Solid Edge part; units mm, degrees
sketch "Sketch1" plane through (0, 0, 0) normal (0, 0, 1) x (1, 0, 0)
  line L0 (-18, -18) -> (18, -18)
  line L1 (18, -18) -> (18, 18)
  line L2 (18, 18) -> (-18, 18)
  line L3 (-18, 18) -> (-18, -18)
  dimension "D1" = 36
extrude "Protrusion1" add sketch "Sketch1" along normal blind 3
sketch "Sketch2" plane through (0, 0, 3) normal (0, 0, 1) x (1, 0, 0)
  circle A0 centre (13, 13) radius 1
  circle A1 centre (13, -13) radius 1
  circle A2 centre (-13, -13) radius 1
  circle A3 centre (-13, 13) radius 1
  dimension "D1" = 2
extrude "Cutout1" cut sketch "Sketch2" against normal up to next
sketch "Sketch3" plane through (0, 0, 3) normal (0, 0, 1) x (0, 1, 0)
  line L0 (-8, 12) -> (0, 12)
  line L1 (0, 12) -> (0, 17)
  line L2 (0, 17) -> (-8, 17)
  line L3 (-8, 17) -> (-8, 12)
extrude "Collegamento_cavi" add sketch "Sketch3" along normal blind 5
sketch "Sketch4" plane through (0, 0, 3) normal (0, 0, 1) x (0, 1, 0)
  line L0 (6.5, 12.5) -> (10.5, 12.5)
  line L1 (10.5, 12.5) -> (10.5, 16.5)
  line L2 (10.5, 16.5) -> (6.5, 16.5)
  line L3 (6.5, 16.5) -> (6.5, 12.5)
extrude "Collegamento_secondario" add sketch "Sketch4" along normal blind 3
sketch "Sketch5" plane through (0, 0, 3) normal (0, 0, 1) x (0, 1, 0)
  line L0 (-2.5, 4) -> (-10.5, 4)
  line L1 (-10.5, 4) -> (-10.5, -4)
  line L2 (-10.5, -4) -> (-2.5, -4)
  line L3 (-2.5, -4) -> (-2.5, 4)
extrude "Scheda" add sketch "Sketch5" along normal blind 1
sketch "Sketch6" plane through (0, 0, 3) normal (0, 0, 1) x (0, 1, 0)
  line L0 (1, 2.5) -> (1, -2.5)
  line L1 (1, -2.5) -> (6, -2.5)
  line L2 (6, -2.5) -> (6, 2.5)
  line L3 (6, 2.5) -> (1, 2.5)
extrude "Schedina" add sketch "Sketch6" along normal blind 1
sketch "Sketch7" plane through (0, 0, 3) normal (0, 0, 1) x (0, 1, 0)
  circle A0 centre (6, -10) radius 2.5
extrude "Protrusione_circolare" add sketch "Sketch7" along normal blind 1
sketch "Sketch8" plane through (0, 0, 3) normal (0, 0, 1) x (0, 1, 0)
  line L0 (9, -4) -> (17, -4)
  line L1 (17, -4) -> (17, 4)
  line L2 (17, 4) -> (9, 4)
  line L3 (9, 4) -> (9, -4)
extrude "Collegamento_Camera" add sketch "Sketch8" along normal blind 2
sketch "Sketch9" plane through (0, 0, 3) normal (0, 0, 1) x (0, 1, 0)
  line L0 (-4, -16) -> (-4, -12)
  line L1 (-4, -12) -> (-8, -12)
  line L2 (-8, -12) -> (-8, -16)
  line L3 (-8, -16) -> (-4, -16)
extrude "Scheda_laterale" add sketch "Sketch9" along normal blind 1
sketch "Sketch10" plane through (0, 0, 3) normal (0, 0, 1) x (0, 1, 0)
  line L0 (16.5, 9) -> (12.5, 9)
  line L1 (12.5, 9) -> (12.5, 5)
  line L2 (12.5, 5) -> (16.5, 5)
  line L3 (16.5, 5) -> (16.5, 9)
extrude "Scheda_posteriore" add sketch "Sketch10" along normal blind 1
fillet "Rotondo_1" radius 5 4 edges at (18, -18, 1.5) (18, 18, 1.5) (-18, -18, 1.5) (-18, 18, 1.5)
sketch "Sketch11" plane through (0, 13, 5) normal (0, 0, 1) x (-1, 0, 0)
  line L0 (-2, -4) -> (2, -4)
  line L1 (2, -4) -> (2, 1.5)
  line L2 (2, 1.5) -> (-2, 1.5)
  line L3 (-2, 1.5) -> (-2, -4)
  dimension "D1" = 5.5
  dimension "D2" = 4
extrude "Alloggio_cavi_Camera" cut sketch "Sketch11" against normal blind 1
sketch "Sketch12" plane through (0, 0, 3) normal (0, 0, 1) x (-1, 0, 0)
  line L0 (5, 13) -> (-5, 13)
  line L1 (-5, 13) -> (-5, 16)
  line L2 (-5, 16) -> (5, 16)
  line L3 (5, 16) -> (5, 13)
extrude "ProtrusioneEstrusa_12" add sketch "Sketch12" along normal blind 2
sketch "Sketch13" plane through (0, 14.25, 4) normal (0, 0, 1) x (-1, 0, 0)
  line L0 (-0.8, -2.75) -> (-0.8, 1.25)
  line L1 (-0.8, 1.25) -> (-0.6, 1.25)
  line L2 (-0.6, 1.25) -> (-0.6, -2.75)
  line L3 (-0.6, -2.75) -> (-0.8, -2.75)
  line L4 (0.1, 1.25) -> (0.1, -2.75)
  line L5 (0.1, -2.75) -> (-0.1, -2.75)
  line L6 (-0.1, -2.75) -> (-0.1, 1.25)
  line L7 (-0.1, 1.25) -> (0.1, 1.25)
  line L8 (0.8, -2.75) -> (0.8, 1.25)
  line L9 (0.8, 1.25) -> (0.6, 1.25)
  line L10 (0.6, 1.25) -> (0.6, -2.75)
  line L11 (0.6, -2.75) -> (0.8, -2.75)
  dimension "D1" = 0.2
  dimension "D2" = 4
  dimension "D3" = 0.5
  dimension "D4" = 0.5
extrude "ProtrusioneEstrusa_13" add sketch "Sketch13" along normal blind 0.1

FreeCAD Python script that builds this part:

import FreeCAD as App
import Part
import Sketcher
from FreeCAD import Vector


def edges_at(feature, points):
    """Names of the edges that pass closest to the given points."""
    edges = feature.Shape.Edges
    near = lambda p: min(range(len(edges)), key=lambda i: edges[i].distToShape(Part.Vertex(*p))[0])
    return sorted({f"Edge{near(p) + 1}" for p in points})


def add_polygon(sketch, points):
    """Adds a closed chain of lines whose ends are joined by coincident constraints."""
    first, n = sketch.GeometryCount, len(points)
    for a, b in zip(points, points[1:] + points[:1]):
        sketch.addGeometry(Part.LineSegment(App.Vector(*a, 0), App.Vector(*b, 0)), False)
    for i in range(n):
        sketch.addConstraint(Sketcher.Constraint("Coincident", first + i, 2, first + (i + 1) % n, 1))

doc = App.newDocument("Part")
body = doc.addObject("PartDesign::Body", "Body")

# Sketch on XY plane
sketch1 = body.newObject("Sketcher::SketchObject", "Sketch")
sketch1.AttachmentSupport = (doc.getObject("XY_Plane"), [""])
sketch1.MapMode = "FlatFace"
add_polygon(sketch1, [(-18, 18), (-18, -18), (18, -18), (18, 18)])  # lines 0-3
sketch1.addConstraint(Sketcher.Constraint("Vertical", 0))
sketch1.addConstraint(Sketcher.Constraint("Horizontal", 1))
sketch1.addConstraint(Sketcher.Constraint("Vertical", 2))
sketch1.addConstraint(Sketcher.Constraint("Horizontal", 3))
sketch1.addConstraint(Sketcher.Constraint("Symmetric", 0, 2, 2, 2, -1, 1))
sketch1.addConstraint(Sketcher.Constraint("Equal", 3, 0))
sketch1.addConstraint(Sketcher.Constraint("DistanceX", 0, 2, -1, 1, 18.0))
pad1 = body.newObject("PartDesign::Pad", "Pad")
pad1.Profile = sketch1
pad1.Length = 3

# Sketch on XY plane
sketch2 = body.newObject("Sketcher::SketchObject", "Sketch001")
sketch2.AttachmentSupport = (doc.getObject("XY_Plane"), [""])
sketch2.MapMode = "FlatFace"
sketch2.AttachmentOffset = App.Placement(Vector(0, 0, 3), App.Rotation())
sketch2.addGeometry(Part.Circle(Vector(13, 13, 0), Vector(0, 0, 1), 1), False)
sketch2.addGeometry(Part.Circle(Vector(13, -13, 0), Vector(0, 0, 1), 1), False)
sketch2.addGeometry(Part.Circle(Vector(-13, -13, 0), Vector(0, 0, 1), 1), False)
sketch2.addGeometry(Part.Circle(Vector(-13, 13, 0), Vector(0, 0, 1), 1), False)
sketch2.addConstraint(Sketcher.Constraint("Equal", 0, 1))
sketch2.addConstraint(Sketcher.Constraint("Equal", 1, 2))
sketch2.addConstraint(Sketcher.Constraint("Equal", 2, 3))
sketch2.addConstraint(Sketcher.Constraint("Symmetric", 0, 3, 2, 3, -1, 1))
sketch2.addConstraint(Sketcher.Constraint("Symmetric", 1, 3, 3, 3, -1, 1))
sketch2.addConstraint(Sketcher.Constraint("Symmetric", 1, 3, 2, 3, -2))
sketch2.addConstraint(Sketcher.Constraint("Diameter", 0, 2.0))
sketch2.addConstraint(Sketcher.Constraint("DistanceX", -1, 1, 0, 3, 13.0))
sketch2.addConstraint(Sketcher.Constraint("DistanceY", -1, 1, 0, 3, 13.0))
pocket1 = body.newObject("PartDesign::Pocket", "Pocket")
pocket1.Profile = sketch2
pocket1.Type = "UpToFirst"

# Sketch on XY plane
sketch3 = body.newObject("Sketcher::SketchObject", "Sketch002")
sketch3.AttachmentSupport = (doc.getObject("XY_Plane"), [""])
sketch3.MapMode = "FlatFace"
sketch3.AttachmentOffset = App.Placement(Vector(0, 0, 3), App.Rotation())
add_polygon(sketch3, [(-17, -8), (-12, -8), (-12, 0), (-17, 0)])  # lines 0-3
sketch3.addConstraint(Sketcher.Constraint("Horizontal", 0))
sketch3.addConstraint(Sketcher.Constraint("Vertical", 1))
sketch3.addConstraint(Sketcher.Constraint("Horizontal", 2))
sketch3.addConstraint(Sketcher.Constraint("Vertical", 3))
sketch3.addConstraint(Sketcher.Constraint("PointOnObject", 1, 2, -1))
sketch3.addConstraint(Sketcher.Constraint("DistanceX", 0, 1, 0, 2, 5.0))
sketch3.addConstraint(Sketcher.Constraint("DistanceY", 1, 1, 1, 2, 8.0))
sketch3.addConstraint(Sketcher.Constraint("DistanceX", 0, 2, -1, 1, 12.0))
pad2 = body.newObject("PartDesign::Pad", "Pad001")
pad2.Profile = sketch3
pad2.Length = 5

# Sketch on XY plane
sketch4 = body.newObject("Sketcher::SketchObject", "Sketch003")
sketch4.AttachmentSupport = (doc.getObject("XY_Plane"), [""])
sketch4.MapMode = "FlatFace"
sketch4.AttachmentOffset = App.Placement(Vector(0, 0, 3), App.Rotation())
add_polygon(sketch4, [(-16.5, 6.5), (-12.5, 6.5), (-12.5, 10.5), (-16.5, 10.5)])  # lines 0-3
sketch4.addConstraint(Sketcher.Constraint("Horizontal", 0))
sketch4.addConstraint(Sketcher.Constraint("Vertical", 1))
sketch4.addConstraint(Sketcher.Constraint("Horizontal", 2))
sketch4.addConstraint(Sketcher.Constraint("Vertical", 3))
sketch4.addConstraint(Sketcher.Constraint("Equal", 2, 1))
sketch4.addConstraint(Sketcher.Constraint("DistanceX", 0, 1, 0, 2, 4.0))
sketch4.addConstraint(Sketcher.Constraint("DistanceX", 0, 2, -1, 1, 12.5))
sketch4.addConstraint(Sketcher.Constraint("DistanceY", -1, 1, 0, 2, 6.5))
pad3 = body.newObject("PartDesign::Pad", "Pad002")
pad3.Profile = sketch4
pad3.Length = 3

# Sketch on XY plane
sketch5 = body.newObject("Sketcher::SketchObject", "Sketch004")
sketch5.AttachmentSupport = (doc.getObject("XY_Plane"), [""])
sketch5.MapMode = "FlatFace"
sketch5.AttachmentOffset = App.Placement(Vector(0, 0, 3), App.Rotation())
add_polygon(sketch5, [(4, -2), (-4, -2), (-4, -10), (4, -10)])  # lines 0-3
sketch5.addConstraint(Sketcher.Constraint("Horizontal", 0))
sketch5.addConstraint(Sketcher.Constraint("Vertical", 1))
sketch5.addConstraint(Sketcher.Constraint("Horizontal", 2))
sketch5.addConstraint(Sketcher.Constraint("Vertical", 3))
sketch5.addConstraint(Sketcher.Constraint("Equal", 2, 1))
sketch5.addConstraint(Sketcher.Constraint("DistanceX", 0, 2, 0, 1, 8.0))
sketch5.addConstraint(Sketcher.Constraint("DistanceX", 0, 2, -1, 1, 4.0))
sketch5.addConstraint(Sketcher.Constraint("DistanceY", 0, 2, -1, 1, 2.5))
pad4 = body.newObject("PartDesign::Pad", "Pad003")
pad4.Profile = sketch5
pad4.Length = 1

# Sketch on XY plane
sketch6 = body.newObject("Sketcher::SketchObject", "Sketch005")
sketch6.AttachmentSupport = (doc.getObject("XY_Plane"), [""])
sketch6.MapMode = "FlatFace"
sketch6.AttachmentOffset = App.Placement(Vector(0, 0, 3), App.Rotation())
add_polygon(sketch6, [(-2, 6), (-2, 1), (2, 1), (2, 6)])  # lines 0-3
sketch6.addConstraint(Sketcher.Constraint("Vertical", 0))
sketch6.addConstraint(Sketcher.Constraint("Horizontal", 1))
sketch6.addConstraint(Sketcher.Constraint("Vertical", 2))
sketch6.addConstraint(Sketcher.Constraint("Horizontal", 3))
sketch6.addConstraint(Sketcher.Constraint("Equal", 3, 0))
sketch6.addConstraint(Sketcher.Constraint("DistanceX", 1, 1, 1, 2, 5.0))
sketch6.addConstraint(Sketcher.Constraint("DistanceY", -1, 1, 0, 2, 1.0))
sketch6.addConstraint(Sketcher.Constraint("DistanceX", 0, 2, -1, 1, 2.5))
pad5 = body.newObject("PartDesign::Pad", "Pad004")
pad5.Profile = sketch6
pad5.Length = 1

# Sketch on XY plane
sketch7 = body.newObject("Sketcher::SketchObject", "Sketch006")
sketch7.AttachmentSupport = (doc.getObject("XY_Plane"), [""])
sketch7.MapMode = "FlatFace"
sketch7.AttachmentOffset = App.Placement(Vector(0, 0, 3), App.Rotation())
sketch7.addGeometry(Part.Circle(Vector(10, 6, 0), Vector(0, 0, 1), 2.5), False)
sketch7.addConstraint(Sketcher.Constraint("Diameter", 0, 5.0))
sketch7.addConstraint(Sketcher.Constraint("DistanceX", -1, 1, 0, 3, 10.0))
sketch7.addConstraint(Sketcher.Constraint("DistanceY", -1, 1, 0, 3, 6.0))
pad6 = body.newObject("PartDesign::Pad", "Pad005")
pad6.Profile = sketch7
pad6.Length = 1

# Sketch on XY plane
sketch8 = body.newObject("Sketcher::SketchObject", "Sketch007")
sketch8.AttachmentSupport = (doc.getObject("XY_Plane"), [""])
sketch8.MapMode = "FlatFace"
sketch8.AttachmentOffset = App.Placement(Vector(0, 0, 3), App.Rotation())
add_polygon(sketch8, [(-4, 9), (4, 9), (4, 17), (-4, 17)])  # lines 0-3
sketch8.addConstraint(Sketcher.Constraint("Horizontal", 0))
sketch8.addConstraint(Sketcher.Constraint("Vertical", 1))
sketch8.addConstraint(Sketcher.Constraint("Horizontal", 2))
sketch8.addConstraint(Sketcher.Constraint("Vertical", 3))
sketch8.addConstraint(Sketcher.Constraint("Equal", 2, 1))
sketch8.addConstraint(Sketcher.Constraint("DistanceX", 0, 1, 0, 2, 8.0))
sketch8.addConstraint(Sketcher.Constraint("DistanceX", -1, 1, 0, 2, 4.0))
sketch8.addConstraint(Sketcher.Constraint("DistanceY", -1, 1, 0, 2, 9.0))
pad7 = body.newObject("PartDesign::Pad", "Pad006")
pad7.Profile = sketch8
pad7.Length = 2

# Sketch on XY plane
sketch9 = body.newObject("Sketcher::SketchObject", "Sketch008")
sketch9.AttachmentSupport = (doc.getObject("XY_Plane"), [""])
sketch9.MapMode = "FlatFace"
sketch9.AttachmentOffset = App.Placement(Vector(0, 0, 3), App.Rotation())
add_polygon(sketch9, [(16, -8), (16, -4), (12, -4), (12, -8)])  # lines 0-3
sketch9.addConstraint(Sketcher.Constraint("Vertical", 0))
sketch9.addConstraint(Sketcher.Constraint("Horizontal", 1))
sketch9.addConstraint(Sketcher.Constraint("Vertical", 2))
sketch9.addConstraint(Sketcher.Constraint("Horizontal", 3))
sketch9.addConstraint(Sketcher.Constraint("Equal", 3, 0))
sketch9.addConstraint(Sketcher.Constraint("DistanceX", 1, 2, 1, 1, 4.0))
sketch9.addConstraint(Sketcher.Constraint("DistanceX", -1, 1, 0, 2, 16.0))
sketch9.addConstraint(Sketcher.Constraint("DistanceY", 0, 2, -1, 1, 4.0))
pad8 = body.newObject("PartDesign::Pad", "Pad007")
pad8.Profile = sketch9
pad8.Length = 1

# Sketch on XY plane
sketch10 = body.newObject("Sketcher::SketchObject", "Sketch009")
sketch10.AttachmentSupport = (doc.getObject("XY_Plane"), [""])
sketch10.MapMode = "FlatFace"
sketch10.AttachmentOffset = App.Placement(Vector(0, 0, 3), App.Rotation())
add_polygon(sketch10, [(-5, 16.5), (-9, 16.5), (-9, 12.5), (-5, 12.5)])  # lines 0-3
sketch10.addConstraint(Sketcher.Constraint("Horizontal", 0))
sketch10.addConstraint(Sketcher.Constraint("Vertical", 1))
sketch10.addConstraint(Sketcher.Constraint("Horizontal", 2))
sketch10.addConstraint(Sketcher.Constraint("Vertical", 3))
sketch10.addConstraint(Sketcher.Constraint("Equal", 2, 1))
sketch10.addConstraint(Sketcher.Constraint("DistanceX", 0, 2, 0, 1, 4.0))
sketch10.addConstraint(Sketcher.Constraint("DistanceX", 0, 2, -1, 1, 9.0))
sketch10.addConstraint(Sketcher.Constraint("DistanceY", -1, 1, 0, 2, 16.5))
pad9 = body.newObject("PartDesign::Pad", "Pad008")
pad9.Profile = sketch10
pad9.Length = 1
doc.recompute()

fillet = body.newObject("PartDesign::Fillet", "Fillet")
fillet.Base = (pad9, edges_at(pad9, [
    (18, -18, 1.5),
    (18, 18, 1.5),
    (-18, -18, 1.5),
    (-18, 18, 1.5),
]))
fillet.Radius = 5

# Sketch on XY plane
sketch11 = body.newObject("Sketcher::SketchObject", "Sketch010")
sketch11.AttachmentSupport = (doc.getObject("XY_Plane"), [""])
sketch11.MapMode = "FlatFace"
sketch11.AttachmentOffset = App.Placement(Vector(0, 0, 5), App.Rotation())
add_polygon(sketch11, [(2, 11.5), (2, 17), (-2, 17), (-2, 11.5)])  # lines 0-3
sketch11.addConstraint(Sketcher.Constraint("Vertical", 0))
sketch11.addConstraint(Sketcher.Constraint("Horizontal", 1))
sketch11.addConstraint(Sketcher.Constraint("Vertical", 2))
sketch11.addConstraint(Sketcher.Constraint("Horizontal", 3))
sketch11.addConstraint(Sketcher.Constraint("DistanceX", -1, 1, 0, 2, 2.0))
sketch11.addConstraint(Sketcher.Constraint("DistanceX", 1, 2, -1, 1, 2.0))
sketch11.addConstraint(Sketcher.Constraint("DistanceY", 0, 1, 0, 2, 5.5))
sketch11.addConstraint(Sketcher.Constraint("DistanceY", -1, 1, 0, 2, 17.0))
pocket2 = body.newObject("PartDesign::Pocket", "Pocket001")
pocket2.Profile = sketch11
pocket2.Length = 1

# Sketch on XY plane
sketch12 = body.newObject("Sketcher::SketchObject", "Sketch011")
sketch12.AttachmentSupport = (doc.getObject("XY_Plane"), [""])
sketch12.MapMode = "FlatFace"
sketch12.AttachmentOffset = App.Placement(Vector(0, 0, 3), App.Rotation())
add_polygon(sketch12, [(5, -13), (-5, -13), (-5, -16), (5, -16)])  # lines 0-3
sketch12.addConstraint(Sketcher.Constraint("Horizontal", 0))
sketch12.addConstraint(Sketcher.Constraint("Vertical", 1))
sketch12.addConstraint(Sketcher.Constraint("Horizontal", 2))
sketch12.addConstraint(Sketcher.Constraint("Vertical", 3))
sketch12.addConstraint(Sketcher.Constraint("DistanceX", 0, 2, 0, 1, 10.0))
sketch12.addConstraint(Sketcher.Constraint("DistanceY", 1, 2, 1, 1, 3.0))
sketch12.addConstraint(Sketcher.Constraint("DistanceX", 0, 2, -1, 1, 5.0))
sketch12.addConstraint(Sketcher.Constraint("DistanceY", 0, 2, -1, 1, 13.0))
pad10 = body.newObject("PartDesign::Pad", "Pad009")
pad10.Profile = sketch12
pad10.Length = 2

# Sketch on XY plane
sketch13 = body.newObject("Sketcher::SketchObject", "Sketch012")
sketch13.AttachmentSupport = (doc.getObject("XY_Plane"), [""])
sketch13.MapMode = "FlatFace"
sketch13.AttachmentOffset = App.Placement(Vector(0, 0, 4), App.Rotation())
add_polygon(sketch13, [(0.8, 13), (0.8, 17), (0.6, 17), (0.6, 13)])  # lines 0-3
add_polygon(sketch13, [(-0.1, 17), (-0.1, 13), (0.1, 13), (0.1, 17)])  # lines 4-7
add_polygon(sketch13, [(-0.6, 17), (-0.8, 17), (-0.8, 13), (-0.6, 13)])  # lines 8-11
sketch13.addConstraint(Sketcher.Constraint("Vertical", 0))
sketch13.addConstraint(Sketcher.Constraint("Horizontal", 1))
sketch13.addConstraint(Sketcher.Constraint("Vertical", 2))
sketch13.addConstraint(Sketcher.Constraint("Horizontal", 3))
sketch13.addConstraint(Sketcher.Constraint("Vertical", 4))
sketch13.addConstraint(Sketcher.Constraint("Horizontal", 5))
sketch13.addConstraint(Sketcher.Constraint("Vertical", 6))
sketch13.addConstraint(Sketcher.Constraint("Horizontal", 7))
sketch13.addConstraint(Sketcher.Constraint("Horizontal", 8))
sketch13.addConstraint(Sketcher.Constraint("Vertical", 9))
sketch13.addConstraint(Sketcher.Constraint("Horizontal", 10))
sketch13.addConstraint(Sketcher.Constraint("Vertical", 11))
sketch13.addConstraint(Sketcher.Constraint("Symmetric", 0, 2, 8, 2, -2))
sketch13.addConstraint(Sketcher.Constraint("Symmetric", 2, 2, 10, 2, -2))
sketch13.addConstraint(Sketcher.Constraint("Horizontal", 3, 2, 4, 2))
sketch13.addConstraint(Sketcher.Constraint("Horizontal", 1, 2, 6, 2))
sketch13.addConstraint(Sketcher.Constraint("Equal", 3, 5))
sketch13.addConstraint(Sketcher.Constraint("DistanceY", 0, 1, 0, 2, 4.0))
sketch13.addConstraint(Sketcher.Constraint("DistanceX", 1, 2, 1, 1, 0.2))
sketch13.addConstraint(Sketcher.Constraint("DistanceY", -1, 1, 0, 2, 17.0))
sketch13.addConstraint(Sketcher.Constraint("DistanceX", -1, 1, 0, 2, 0.8))
sketch13.addConstraint(Sketcher.Constraint("DistanceX", 4, 2, -1, 1, 0.1))
pad11 = body.newObject("PartDesign::Pad", "Pad010")
pad11.Profile = sketch13
pad11.Length = 0.1

doc.recompute()
